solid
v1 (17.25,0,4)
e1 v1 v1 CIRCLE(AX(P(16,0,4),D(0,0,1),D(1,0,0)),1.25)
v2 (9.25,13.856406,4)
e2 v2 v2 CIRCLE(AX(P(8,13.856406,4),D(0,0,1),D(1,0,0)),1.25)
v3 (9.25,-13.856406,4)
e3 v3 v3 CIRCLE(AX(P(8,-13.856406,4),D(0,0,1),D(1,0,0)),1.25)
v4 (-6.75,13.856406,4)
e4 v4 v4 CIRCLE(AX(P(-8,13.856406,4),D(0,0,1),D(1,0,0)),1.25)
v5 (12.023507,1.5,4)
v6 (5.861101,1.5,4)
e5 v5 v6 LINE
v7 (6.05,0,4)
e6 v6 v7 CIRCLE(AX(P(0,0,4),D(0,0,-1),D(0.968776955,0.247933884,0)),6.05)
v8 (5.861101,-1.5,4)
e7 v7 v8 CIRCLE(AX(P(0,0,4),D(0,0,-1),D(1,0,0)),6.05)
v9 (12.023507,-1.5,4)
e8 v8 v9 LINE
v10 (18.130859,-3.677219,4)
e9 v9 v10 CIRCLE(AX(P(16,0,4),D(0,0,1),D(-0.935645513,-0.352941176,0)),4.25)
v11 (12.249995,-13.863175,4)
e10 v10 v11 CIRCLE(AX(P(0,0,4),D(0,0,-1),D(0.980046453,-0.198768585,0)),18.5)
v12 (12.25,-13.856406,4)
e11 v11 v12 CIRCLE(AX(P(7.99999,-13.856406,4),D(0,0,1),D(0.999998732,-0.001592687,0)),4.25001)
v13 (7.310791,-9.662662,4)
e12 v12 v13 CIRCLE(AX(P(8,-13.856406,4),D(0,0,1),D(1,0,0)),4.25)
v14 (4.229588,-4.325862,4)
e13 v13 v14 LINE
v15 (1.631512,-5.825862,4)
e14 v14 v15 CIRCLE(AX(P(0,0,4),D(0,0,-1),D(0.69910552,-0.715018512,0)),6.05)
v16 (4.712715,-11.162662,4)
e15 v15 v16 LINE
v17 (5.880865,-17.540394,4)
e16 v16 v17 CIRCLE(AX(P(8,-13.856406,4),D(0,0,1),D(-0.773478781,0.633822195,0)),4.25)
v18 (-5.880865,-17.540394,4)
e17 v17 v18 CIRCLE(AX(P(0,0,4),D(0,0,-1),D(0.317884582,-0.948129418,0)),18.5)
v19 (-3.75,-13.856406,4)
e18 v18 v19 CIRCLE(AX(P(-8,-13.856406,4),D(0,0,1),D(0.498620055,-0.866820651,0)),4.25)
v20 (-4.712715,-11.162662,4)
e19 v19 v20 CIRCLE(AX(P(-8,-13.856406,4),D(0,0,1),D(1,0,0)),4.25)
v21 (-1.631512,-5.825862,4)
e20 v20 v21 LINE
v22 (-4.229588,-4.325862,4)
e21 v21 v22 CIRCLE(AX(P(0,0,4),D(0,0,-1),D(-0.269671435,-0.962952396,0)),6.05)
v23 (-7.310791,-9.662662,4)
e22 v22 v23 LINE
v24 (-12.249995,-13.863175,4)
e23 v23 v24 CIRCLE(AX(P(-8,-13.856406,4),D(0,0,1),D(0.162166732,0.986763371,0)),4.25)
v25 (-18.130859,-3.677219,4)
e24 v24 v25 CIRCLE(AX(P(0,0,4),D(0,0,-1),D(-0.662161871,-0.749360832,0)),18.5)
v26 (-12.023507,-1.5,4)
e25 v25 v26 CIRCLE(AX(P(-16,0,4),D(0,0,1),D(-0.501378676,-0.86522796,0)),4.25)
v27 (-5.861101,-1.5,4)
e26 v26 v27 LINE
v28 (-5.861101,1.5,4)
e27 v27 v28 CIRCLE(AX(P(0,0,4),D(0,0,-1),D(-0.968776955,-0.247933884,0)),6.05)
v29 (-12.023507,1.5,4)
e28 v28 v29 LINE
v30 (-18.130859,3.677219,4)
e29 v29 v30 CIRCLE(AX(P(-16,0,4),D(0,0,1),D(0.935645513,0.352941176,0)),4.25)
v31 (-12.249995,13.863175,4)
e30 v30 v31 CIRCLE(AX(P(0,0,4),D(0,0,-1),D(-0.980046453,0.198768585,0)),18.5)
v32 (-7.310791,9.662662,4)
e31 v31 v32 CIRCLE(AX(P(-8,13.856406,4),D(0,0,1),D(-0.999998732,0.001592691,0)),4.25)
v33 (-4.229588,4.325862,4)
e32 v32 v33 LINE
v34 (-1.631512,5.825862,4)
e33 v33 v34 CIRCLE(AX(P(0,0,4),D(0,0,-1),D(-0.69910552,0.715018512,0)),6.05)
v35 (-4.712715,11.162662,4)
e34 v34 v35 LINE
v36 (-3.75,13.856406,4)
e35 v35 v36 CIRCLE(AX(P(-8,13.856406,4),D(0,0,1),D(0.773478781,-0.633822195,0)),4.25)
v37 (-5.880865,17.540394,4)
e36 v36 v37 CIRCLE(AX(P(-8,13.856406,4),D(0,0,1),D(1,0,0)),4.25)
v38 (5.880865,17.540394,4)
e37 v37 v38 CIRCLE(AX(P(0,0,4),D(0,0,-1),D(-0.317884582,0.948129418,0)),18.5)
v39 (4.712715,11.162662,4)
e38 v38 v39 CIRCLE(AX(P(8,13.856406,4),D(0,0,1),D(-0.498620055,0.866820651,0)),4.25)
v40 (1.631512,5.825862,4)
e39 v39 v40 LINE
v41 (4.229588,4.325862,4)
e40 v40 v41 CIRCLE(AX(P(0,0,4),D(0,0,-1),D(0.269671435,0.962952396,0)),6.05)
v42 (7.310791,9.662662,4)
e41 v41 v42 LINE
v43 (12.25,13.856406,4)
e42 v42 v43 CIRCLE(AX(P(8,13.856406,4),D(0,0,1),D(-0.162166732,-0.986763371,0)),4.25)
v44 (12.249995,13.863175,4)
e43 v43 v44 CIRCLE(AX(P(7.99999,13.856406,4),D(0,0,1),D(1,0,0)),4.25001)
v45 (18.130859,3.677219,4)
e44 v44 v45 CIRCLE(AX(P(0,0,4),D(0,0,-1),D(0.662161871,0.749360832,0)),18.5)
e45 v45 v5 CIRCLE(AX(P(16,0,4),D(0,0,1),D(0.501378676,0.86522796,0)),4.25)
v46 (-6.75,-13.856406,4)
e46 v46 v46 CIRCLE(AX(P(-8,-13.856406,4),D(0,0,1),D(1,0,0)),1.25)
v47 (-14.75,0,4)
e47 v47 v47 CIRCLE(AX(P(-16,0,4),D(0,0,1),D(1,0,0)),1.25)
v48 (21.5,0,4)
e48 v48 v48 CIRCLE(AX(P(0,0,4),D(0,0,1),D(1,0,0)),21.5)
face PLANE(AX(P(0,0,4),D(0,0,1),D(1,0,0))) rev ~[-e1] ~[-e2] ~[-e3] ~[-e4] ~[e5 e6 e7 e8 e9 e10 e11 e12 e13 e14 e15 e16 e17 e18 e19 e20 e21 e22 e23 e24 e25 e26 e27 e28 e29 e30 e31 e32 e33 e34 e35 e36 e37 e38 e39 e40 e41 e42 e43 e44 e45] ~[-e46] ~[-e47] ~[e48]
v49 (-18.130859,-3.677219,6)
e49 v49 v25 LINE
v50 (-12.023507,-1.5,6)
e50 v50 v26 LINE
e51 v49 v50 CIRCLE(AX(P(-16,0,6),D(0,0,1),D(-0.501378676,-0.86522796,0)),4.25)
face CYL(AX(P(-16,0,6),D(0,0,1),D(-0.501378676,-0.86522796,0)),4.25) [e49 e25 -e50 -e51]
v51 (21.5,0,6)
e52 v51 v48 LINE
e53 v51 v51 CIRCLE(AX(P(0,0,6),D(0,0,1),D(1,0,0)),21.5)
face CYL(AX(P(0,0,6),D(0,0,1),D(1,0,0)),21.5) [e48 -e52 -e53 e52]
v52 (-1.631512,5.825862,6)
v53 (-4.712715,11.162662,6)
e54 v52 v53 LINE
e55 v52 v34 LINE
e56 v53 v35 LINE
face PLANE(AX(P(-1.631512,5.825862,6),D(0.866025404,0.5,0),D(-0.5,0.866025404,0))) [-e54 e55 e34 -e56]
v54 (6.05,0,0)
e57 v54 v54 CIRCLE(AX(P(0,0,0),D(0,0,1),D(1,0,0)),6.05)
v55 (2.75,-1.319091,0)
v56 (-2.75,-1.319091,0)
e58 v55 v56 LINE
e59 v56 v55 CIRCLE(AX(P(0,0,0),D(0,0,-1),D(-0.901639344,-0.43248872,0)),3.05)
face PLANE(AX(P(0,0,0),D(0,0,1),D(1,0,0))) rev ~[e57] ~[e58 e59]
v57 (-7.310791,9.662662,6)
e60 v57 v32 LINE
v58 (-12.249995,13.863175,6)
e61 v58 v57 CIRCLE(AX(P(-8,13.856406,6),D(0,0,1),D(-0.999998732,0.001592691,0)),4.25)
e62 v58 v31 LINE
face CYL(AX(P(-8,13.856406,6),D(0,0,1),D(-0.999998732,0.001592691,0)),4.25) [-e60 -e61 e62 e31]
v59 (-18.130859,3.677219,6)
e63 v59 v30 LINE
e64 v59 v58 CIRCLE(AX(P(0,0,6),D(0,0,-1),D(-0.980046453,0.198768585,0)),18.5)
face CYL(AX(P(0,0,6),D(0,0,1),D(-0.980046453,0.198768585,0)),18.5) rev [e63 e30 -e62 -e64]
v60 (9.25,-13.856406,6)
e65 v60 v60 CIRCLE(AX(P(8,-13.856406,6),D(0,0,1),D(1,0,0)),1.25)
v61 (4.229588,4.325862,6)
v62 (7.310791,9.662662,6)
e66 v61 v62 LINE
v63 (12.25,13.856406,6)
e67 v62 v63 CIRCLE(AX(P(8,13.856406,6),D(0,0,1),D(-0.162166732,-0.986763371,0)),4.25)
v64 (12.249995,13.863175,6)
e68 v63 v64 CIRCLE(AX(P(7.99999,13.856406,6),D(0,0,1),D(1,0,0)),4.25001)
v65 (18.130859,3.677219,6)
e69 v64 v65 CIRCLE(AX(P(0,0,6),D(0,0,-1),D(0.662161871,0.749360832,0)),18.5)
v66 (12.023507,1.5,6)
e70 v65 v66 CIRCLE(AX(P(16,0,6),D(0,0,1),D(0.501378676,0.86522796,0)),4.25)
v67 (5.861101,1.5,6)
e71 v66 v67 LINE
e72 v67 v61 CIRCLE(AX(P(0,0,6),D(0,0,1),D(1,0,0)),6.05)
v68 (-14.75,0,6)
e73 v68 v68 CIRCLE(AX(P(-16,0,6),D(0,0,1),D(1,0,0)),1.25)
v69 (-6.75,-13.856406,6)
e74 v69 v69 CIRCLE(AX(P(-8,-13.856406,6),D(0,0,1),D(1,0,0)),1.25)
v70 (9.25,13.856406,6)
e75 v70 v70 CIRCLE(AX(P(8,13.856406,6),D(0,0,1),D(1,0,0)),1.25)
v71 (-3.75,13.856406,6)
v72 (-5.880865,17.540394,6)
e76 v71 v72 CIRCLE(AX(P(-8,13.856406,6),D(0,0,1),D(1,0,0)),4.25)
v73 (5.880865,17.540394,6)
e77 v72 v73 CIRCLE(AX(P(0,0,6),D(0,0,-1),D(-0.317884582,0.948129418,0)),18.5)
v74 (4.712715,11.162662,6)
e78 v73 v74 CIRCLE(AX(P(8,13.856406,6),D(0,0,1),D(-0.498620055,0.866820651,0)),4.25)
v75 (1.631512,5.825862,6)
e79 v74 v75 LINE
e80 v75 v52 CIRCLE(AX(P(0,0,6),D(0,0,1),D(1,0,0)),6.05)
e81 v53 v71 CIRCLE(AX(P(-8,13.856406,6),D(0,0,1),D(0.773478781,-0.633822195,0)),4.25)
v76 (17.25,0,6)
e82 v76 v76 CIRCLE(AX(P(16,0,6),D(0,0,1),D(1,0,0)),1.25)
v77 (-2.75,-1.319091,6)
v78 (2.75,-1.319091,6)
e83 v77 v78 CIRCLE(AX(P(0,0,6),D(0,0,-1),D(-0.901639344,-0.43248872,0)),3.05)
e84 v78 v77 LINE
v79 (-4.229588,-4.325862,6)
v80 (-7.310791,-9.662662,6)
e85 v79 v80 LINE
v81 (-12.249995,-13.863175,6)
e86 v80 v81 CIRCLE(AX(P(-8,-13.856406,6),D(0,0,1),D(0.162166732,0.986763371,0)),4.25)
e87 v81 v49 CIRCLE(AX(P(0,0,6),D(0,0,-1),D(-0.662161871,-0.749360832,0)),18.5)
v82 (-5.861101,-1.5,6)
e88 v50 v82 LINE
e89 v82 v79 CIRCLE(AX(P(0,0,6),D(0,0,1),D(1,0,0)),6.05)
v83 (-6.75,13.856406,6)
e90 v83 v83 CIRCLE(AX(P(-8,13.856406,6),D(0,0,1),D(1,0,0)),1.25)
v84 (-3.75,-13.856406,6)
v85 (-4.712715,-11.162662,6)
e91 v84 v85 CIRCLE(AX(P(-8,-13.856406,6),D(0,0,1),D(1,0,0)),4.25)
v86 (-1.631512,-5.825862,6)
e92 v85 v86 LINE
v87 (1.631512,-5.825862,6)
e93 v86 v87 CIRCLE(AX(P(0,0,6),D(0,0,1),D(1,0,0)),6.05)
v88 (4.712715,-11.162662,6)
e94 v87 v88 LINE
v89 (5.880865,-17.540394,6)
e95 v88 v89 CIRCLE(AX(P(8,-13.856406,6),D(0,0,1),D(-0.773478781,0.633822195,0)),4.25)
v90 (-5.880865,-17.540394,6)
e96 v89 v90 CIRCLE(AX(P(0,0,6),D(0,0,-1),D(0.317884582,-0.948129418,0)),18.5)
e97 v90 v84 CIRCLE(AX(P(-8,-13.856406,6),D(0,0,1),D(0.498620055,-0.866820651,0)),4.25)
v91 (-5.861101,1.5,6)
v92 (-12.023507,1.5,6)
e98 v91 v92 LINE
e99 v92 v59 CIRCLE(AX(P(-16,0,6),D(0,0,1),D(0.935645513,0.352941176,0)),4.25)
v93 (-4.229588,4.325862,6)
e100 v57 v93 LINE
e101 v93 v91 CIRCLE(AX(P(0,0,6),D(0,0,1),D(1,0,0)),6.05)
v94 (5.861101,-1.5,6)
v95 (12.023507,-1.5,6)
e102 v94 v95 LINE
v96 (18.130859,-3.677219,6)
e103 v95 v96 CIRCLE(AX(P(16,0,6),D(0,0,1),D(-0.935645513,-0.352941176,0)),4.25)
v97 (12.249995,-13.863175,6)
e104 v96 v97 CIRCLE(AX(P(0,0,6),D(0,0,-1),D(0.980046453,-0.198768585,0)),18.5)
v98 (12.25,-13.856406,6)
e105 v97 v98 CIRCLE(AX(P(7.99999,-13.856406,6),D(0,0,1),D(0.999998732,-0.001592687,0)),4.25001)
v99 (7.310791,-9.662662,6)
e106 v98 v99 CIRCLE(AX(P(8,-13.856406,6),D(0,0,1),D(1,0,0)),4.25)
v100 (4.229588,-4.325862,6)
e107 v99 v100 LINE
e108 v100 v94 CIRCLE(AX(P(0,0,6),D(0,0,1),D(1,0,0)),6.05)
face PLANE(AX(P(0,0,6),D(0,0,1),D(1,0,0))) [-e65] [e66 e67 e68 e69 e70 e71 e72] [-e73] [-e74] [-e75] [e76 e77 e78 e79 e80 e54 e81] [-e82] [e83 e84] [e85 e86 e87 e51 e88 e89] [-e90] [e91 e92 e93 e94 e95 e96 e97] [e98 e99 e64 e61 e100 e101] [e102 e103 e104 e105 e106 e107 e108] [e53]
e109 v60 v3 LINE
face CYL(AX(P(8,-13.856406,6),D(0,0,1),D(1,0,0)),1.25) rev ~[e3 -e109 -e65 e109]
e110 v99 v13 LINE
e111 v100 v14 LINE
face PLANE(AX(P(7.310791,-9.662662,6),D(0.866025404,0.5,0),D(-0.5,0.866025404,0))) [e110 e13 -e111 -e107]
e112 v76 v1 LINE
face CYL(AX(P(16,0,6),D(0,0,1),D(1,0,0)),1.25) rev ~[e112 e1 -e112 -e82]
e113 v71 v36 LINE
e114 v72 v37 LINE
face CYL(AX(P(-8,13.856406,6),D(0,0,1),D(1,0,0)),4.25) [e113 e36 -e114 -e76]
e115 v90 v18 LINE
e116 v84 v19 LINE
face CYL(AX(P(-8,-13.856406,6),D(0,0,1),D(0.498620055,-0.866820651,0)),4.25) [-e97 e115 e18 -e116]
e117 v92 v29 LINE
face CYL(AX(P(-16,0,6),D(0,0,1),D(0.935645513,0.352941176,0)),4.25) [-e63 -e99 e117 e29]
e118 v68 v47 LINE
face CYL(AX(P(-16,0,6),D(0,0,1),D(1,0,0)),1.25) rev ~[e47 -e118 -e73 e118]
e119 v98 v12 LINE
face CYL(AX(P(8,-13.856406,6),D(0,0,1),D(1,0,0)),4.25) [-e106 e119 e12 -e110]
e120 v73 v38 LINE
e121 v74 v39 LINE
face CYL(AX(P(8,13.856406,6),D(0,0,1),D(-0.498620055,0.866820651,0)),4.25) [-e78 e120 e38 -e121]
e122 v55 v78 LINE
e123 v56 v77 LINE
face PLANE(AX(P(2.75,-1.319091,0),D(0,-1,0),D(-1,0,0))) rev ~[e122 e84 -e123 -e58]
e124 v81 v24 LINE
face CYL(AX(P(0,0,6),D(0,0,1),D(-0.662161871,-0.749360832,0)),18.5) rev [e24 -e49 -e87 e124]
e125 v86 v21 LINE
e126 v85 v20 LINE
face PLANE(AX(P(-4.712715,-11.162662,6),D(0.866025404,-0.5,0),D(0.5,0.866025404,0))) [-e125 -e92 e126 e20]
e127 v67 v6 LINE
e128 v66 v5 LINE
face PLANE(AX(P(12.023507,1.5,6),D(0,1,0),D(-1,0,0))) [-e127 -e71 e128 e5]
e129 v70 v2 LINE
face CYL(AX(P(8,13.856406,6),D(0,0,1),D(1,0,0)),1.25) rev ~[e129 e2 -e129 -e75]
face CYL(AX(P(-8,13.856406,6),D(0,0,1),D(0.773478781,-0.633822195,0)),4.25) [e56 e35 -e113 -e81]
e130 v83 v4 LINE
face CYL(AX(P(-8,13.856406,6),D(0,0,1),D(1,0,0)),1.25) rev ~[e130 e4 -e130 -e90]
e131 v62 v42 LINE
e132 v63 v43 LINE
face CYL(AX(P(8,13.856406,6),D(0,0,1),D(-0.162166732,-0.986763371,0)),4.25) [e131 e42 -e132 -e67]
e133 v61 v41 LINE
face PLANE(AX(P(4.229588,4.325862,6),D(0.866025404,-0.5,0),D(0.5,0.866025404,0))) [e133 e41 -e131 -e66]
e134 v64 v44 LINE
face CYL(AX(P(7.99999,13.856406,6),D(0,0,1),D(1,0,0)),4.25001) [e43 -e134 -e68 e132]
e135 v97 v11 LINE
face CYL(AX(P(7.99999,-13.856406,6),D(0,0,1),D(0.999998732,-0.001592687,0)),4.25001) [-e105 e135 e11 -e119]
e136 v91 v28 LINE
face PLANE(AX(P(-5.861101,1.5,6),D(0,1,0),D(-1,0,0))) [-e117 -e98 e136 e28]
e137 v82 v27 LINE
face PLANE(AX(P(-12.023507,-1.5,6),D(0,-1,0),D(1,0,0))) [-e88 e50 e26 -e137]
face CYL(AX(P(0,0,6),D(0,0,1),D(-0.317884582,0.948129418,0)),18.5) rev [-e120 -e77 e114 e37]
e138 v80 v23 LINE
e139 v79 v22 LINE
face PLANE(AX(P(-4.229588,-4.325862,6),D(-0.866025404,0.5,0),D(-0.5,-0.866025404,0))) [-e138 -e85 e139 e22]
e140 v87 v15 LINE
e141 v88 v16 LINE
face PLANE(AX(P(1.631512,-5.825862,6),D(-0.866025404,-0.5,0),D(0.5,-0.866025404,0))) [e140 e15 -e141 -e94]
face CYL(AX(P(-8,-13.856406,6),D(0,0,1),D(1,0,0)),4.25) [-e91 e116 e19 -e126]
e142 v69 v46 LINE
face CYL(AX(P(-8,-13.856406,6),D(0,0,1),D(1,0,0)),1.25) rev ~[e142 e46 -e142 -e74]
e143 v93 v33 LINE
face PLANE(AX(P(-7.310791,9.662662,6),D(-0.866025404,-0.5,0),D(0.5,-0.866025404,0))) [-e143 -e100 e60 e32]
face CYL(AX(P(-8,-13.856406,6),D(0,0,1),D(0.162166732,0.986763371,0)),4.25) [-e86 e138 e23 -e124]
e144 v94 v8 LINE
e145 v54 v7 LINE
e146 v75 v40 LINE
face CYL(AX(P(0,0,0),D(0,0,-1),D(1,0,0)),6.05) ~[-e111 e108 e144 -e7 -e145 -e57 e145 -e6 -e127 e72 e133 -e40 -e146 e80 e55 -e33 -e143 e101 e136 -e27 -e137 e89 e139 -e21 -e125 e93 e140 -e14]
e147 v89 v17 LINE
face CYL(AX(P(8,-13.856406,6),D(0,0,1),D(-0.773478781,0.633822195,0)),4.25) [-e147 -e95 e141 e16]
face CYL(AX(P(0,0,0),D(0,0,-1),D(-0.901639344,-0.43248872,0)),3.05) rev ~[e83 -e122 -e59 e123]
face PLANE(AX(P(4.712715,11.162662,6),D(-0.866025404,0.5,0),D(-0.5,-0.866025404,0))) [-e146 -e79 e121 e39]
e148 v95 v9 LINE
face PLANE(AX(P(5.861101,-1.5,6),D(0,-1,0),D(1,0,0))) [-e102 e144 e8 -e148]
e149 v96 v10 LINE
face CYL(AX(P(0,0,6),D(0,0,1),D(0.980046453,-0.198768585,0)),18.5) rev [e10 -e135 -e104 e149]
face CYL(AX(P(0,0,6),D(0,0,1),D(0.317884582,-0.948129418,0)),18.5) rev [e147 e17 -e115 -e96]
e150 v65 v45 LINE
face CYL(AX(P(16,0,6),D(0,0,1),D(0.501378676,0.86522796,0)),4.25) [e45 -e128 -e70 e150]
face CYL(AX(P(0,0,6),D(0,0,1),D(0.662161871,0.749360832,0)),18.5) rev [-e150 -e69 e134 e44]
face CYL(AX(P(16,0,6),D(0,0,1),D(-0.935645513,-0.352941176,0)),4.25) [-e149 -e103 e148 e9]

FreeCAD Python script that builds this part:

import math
import FreeCAD as App
import Part
import Sketcher
from FreeCAD import Vector
Q = App.Units.Quantity

doc = App.newDocument("Part")
params = doc.addObject("Spreadsheet::Sheet", "Params")
for row, (alias, value) in enumerate([
    ("sketch1_diameter", "12.1 mm"),
    ("sketch1_radius", "3.05 mm"),
    ("sketch1_width", "5.5 mm"),
    ("pad1_length", "6 mm"),
    ("sketch2_diameter", "43 mm"),
    ("sketch2_diameter2", "2.5 mm"),
    ("sketch2_radius", "18.5 mm"),
    ("sketch2_radius2", "4.25 mm"),
    ("sketch2_radius3", "6.05 mm"),
    ("pad2_length", "2 mm"),
], start=1):
    params.set(f"A{row}", alias)
    params.set(f"B{row}", "=" + value)
    params.setAlias(f"B{row}", alias)

body = doc.addObject("PartDesign::Body", "Body")

# Sketch on XY plane
sketch1 = doc.addObject("Sketcher::SketchObject", "Sketch")
body.addObject(sketch1)
sketch1.AttachmentSupport = (doc.XY_Plane, [""])
sketch1.MapMode = "FlatFace"
sketch1.addGeometry(Part.Circle(Vector(0, 0, 0), Vector(0, 0, 1), 6), False)
sketch1.addGeometry(Part.ArcOfCircle(Part.Circle(Vector(0, 0, 0), Vector(0, 0, 1), 3), math.radians(-26), math.radians(206)), False)
sketch1.addGeometry(Part.LineSegment(Vector(2.8, -1.3, 0), Vector(-2.8, -1.3, 0)), False)
sketch1.addConstraint(Sketcher.Constraint("Coincident", 1, 1, 2, 1))
sketch1.addConstraint(Sketcher.Constraint("Coincident", 2, 2, 1, 2))
sketch1.addConstraint(Sketcher.Constraint("Horizontal", 2))
sketch1.addConstraint(Sketcher.Constraint("Coincident", 0, 3, -1, 1))
sketch1.addConstraint(Sketcher.Constraint("Coincident", 1, 3, -1, 1))
sketch1.addConstraint(Sketcher.Constraint("Diameter", 0, Q("12.1 mm")))
sketch1.addConstraint(Sketcher.Constraint("Radius", 1, Q("3.05 mm")))
sketch1.addConstraint(Sketcher.Constraint("DistanceX", 2, 2, 2, 1, Q("5.5 mm")))
sketch1.setExpression("Constraints[5]", "Params.sketch1_diameter")
sketch1.setExpression("Constraints[6]", "Params.sketch1_radius")
sketch1.setExpression("Constraints[7]", "Params.sketch1_width")
pad1 = doc.addObject("PartDesign::Pad", "Pad")
body.addObject(pad1)
pad1.Profile = sketch1
pad1.setExpression("Length", "Params.pad1_length")

# Sketch on XY plane
sketch2 = doc.addObject("Sketcher::SketchObject", "Sketch001")
body.addObject(sketch2)
sketch2.AttachmentSupport = (doc.XY_Plane, [""])
sketch2.MapMode = "FlatFace"
sketch2.AttachmentOffset = App.Placement(Vector(0, 0, 6), App.Rotation())
sketch2.addGeometry(Part.Circle(Vector(0, 0, 0), Vector(0, 0, 1), 21.5), False)
sketch2.addGeometry(Part.ArcOfCircle(Part.Circle(Vector(0, 0, 0), Vector(0, 0, 1), 18.5), math.radians(11), math.radians(49)), False)
sketch2.addGeometry(Part.ArcOfCircle(Part.Circle(Vector(16, 0, 0), Vector(0, 0, 1), 4.25), math.radians(60), math.radians(159)), False)
sketch2.addGeometry(Part.LineSegment(Vector(12.024, 1.5, 0), Vector(5.861, 1.5, 0)), False)
sketch2.addGeometry(Part.ArcOfCircle(Part.Circle(Vector(0, 0, 0), Vector(0, 0, 1), 6.05), math.radians(0), math.radians(14.36)), False)
sketch2.addGeometry(Part.ArcOfCircle(Part.Circle(Vector(0, 0, 0), Vector(0, 0, 1), 6.05), math.radians(-14.36), math.radians(0)), False)
sketch2.addGeometry(Part.LineSegment(Vector(5.861, -1.5, 0), Vector(12.024, -1.5, 0)), False)
sketch2.addGeometry(Part.ArcOfCircle(Part.Circle(Vector(16, 0, 0), Vector(0, 0, 1), 4.25), math.radians(-159), math.radians(-60)), False)
sketch2.addGeometry(Part.ArcOfCircle(Part.Circle(Vector(0, 0, 0), Vector(0, 0, 1), 18.5), math.radians(-49), math.radians(-11)), False)
sketch2.addGeometry(Part.ArcOfCircle(Part.Circle(Vector(8, -13.856, 0), Vector(0, 0, 1), 4.25), math.radians(-0.09), math.radians(0)), False)
sketch2.addGeometry(Part.ArcOfCircle(Part.Circle(Vector(8, -13.856, 0), Vector(0, 0, 1), 4.25), math.radians(0), math.radians(99)), False)
sketch2.addGeometry(Part.LineSegment(Vector(7.311, -9.663, 0), Vector(4.23, -4.326, 0)), False)
sketch2.addGeometry(Part.ArcOfCircle(Part.Circle(Vector(0, 0, 0), Vector(0, 0, 1), 6.05), math.radians(-74), math.radians(-46)), False)
sketch2.addGeometry(Part.LineSegment(Vector(1.632, -5.826, 0), Vector(4.713, -11.163, 0)), False)
sketch2.addGeometry(Part.ArcOfCircle(Part.Circle(Vector(8, -13.856, 0), Vector(0, 0, 1), 4.25), math.radians(141), math.radians(240)), False)
sketch2.addGeometry(Part.ArcOfCircle(Part.Circle(Vector(0, 0, 0), Vector(0, 0, 1), 18.5), math.radians(-109), math.radians(-71)), False)
sketch2.addGeometry(Part.ArcOfCircle(Part.Circle(Vector(-8, -13.856, 0), Vector(0, 0, 1), 4.25), math.radians(-60), math.radians(0)), False)
sketch2.addGeometry(Part.ArcOfCircle(Part.Circle(Vector(-8, -13.856, 0), Vector(0, 0, 1), 4.25), math.radians(0), math.radians(39)), False)
sketch2.addGeometry(Part.LineSegment(Vector(-4.713, -11.163, 0), Vector(-1.632, -5.826, 0)), False)
sketch2.addGeometry(Part.ArcOfCircle(Part.Circle(Vector(0, 0, 0), Vector(0, 0, 1), 6.05), math.radians(-134), math.radians(-106)), False)
sketch2.addGeometry(Part.LineSegment(Vector(-4.23, -4.326, 0), Vector(-7.311, -9.663, 0)), False)
sketch2.addGeometry(Part.ArcOfCircle(Part.Circle(Vector(-8, -13.856, 0), Vector(0, 0, 1), 4.25), math.radians(81), math.radians(180)), False)
sketch2.addGeometry(Part.ArcOfCircle(Part.Circle(Vector(0, 0, 0), Vector(0, 0, 1), 18.5), math.radians(-169), math.radians(-131)), False)
sketch2.addGeometry(Part.ArcOfCircle(Part.Circle(Vector(-16, 0, 0), Vector(0, 0, 1), 4.25), math.radians(-120), math.radians(-21)), False)
sketch2.addGeometry(Part.LineSegment(Vector(-12.024, -1.5, 0), Vector(-5.861, -1.5, 0)), False)
sketch2.addGeometry(Part.ArcOfCircle(Part.Circle(Vector(0, 0, 0), Vector(0, 0, 1), 6.05), math.radians(166), math.radians(194)), False)
sketch2.addGeometry(Part.LineSegment(Vector(-5.861, 1.5, 0), Vector(-12.024, 1.5, 0)), False)
sketch2.addGeometry(Part.ArcOfCircle(Part.Circle(Vector(-16, 0, 0), Vector(0, 0, 1), 4.25), math.radians(21), math.radians(120)), False)
sketch2.addGeometry(Part.ArcOfCircle(Part.Circle(Vector(0, 0, 0), Vector(0, 0, 1), 18.5), math.radians(131), math.radians(169)), False)
sketch2.addGeometry(Part.ArcOfCircle(Part.Circle(Vector(-8, 13.856, 0), Vector(0, 0, 1), 4.25), math.radians(180), math.radians(279)), False)
sketch2.addGeometry(Part.LineSegment(Vector(-7.311, 9.663, 0), Vector(-4.23, 4.326, 0)), False)
sketch2.addGeometry(Part.ArcOfCircle(Part.Circle(Vector(0, 0, 0), Vector(0, 0, 1), 6.05), math.radians(106), math.radians(134)), False)
sketch2.addGeometry(Part.LineSegment(Vector(-1.632, 5.826, 0), Vector(-4.713, 11.163, 0)), False)
sketch2.addGeometry(Part.ArcOfCircle(Part.Circle(Vector(-8, 13.856, 0), Vector(0, 0, 1), 4.25), math.radians(-39), math.radians(0)), False)
sketch2.addGeometry(Part.ArcOfCircle(Part.Circle(Vector(-8, 13.856, 0), Vector(0, 0, 1), 4.25), math.radians(0), math.radians(60)), False)
sketch2.addGeometry(Part.ArcOfCircle(Part.Circle(Vector(0, 0, 0), Vector(0, 0, 1), 18.5), math.radians(71), math.radians(109)), False)
sketch2.addGeometry(Part.ArcOfCircle(Part.Circle(Vector(8, 13.856, 0), Vector(0, 0, 1), 4.25), math.radians(120), math.radians(219)), False)
sketch2.addGeometry(Part.LineSegment(Vector(4.713, 11.163, 0), Vector(1.632, 5.826, 0)), False)
sketch2.addGeometry(Part.ArcOfCircle(Part.Circle(Vector(0, 0, 0), Vector(0, 0, 1), 6.05), math.radians(46), math.radians(74)), False)
sketch2.addGeometry(Part.LineSegment(Vector(4.23, 4.326, 0), Vector(7.311, 9.663, 0)), False)
sketch2.addGeometry(Part.ArcOfCircle(Part.Circle(Vector(8, 13.856, 0), Vector(0, 0, 1), 4.25), math.radians(-99), math.radians(0)), False)
sketch2.addGeometry(Part.ArcOfCircle(Part.Circle(Vector(8, 13.856, 0), Vector(0, 0, 1), 4.25), math.radians(0), math.radians(0.09)), False)
sketch2.addGeometry(Part.Circle(Vector(-8, 13.856, 0), Vector(0, 0, 1), 1.25), False)
sketch2.addGeometry(Part.Circle(Vector(-16, 0, 0), Vector(0, 0, 1), 1.25), False)
sketch2.addGeometry(Part.Circle(Vector(-8, -13.856, 0), Vector(0, 0, 1), 1.25), False)
sketch2.addGeometry(Part.Circle(Vector(8, -13.856, 0), Vector(0, 0, 1), 1.25), False)
sketch2.addGeometry(Part.Circle(Vector(16, 0, 0), Vector(0, 0, 1), 1.25), False)
sketch2.addGeometry(Part.Circle(Vector(8, 13.856, 0), Vector(0, 0, 1), 1.25), False)
sketch2.addConstraint(Sketcher.Constraint("Coincident", 1, 1, 2, 1))
sketch2.addConstraint(Sketcher.Constraint("Coincident", 2, 2, 3, 1))
sketch2.addConstraint(Sketcher.Constraint("Coincident", 3, 2, 4, 2))
sketch2.addConstraint(Sketcher.Constraint("Tangent", 4, 1, 5, 2))
sketch2.addConstraint(Sketcher.Constraint("Coincident", 5, 1, 6, 1))
sketch2.addConstraint(Sketcher.Constraint("Coincident", 6, 2, 7, 1))
sketch2.addConstraint(Sketcher.Constraint("Coincident", 7, 2, 8, 2))
sketch2.addConstraint(Sketcher.Constraint("Coincident", 8, 1, 9, 1))
sketch2.addConstraint(Sketcher.Constraint("Tangent", 9, 2, 10, 1))
sketch2.addConstraint(Sketcher.Constraint("Coincident", 10, 2, 11, 1))
sketch2.addConstraint(Sketcher.Constraint("Coincident", 11, 2, 12, 2))
sketch2.addConstraint(Sketcher.Constraint("Coincident", 12, 1, 13, 1))
sketch2.addConstraint(Sketcher.Constraint("Coincident", 13, 2, 14, 1))
sketch2.addConstraint(Sketcher.Constraint("Coincident", 14, 2, 15, 2))
sketch2.addConstraint(Sketcher.Constraint("Coincident", 15, 1, 16, 1))
sketch2.addConstraint(Sketcher.Constraint("Tangent", 16, 2, 17, 1))
sketch2.addConstraint(Sketcher.Constraint("Coincident", 17, 2, 18, 1))
sketch2.addConstraint(Sketcher.Constraint("Coincident", 18, 2, 19, 2))
sketch2.addConstraint(Sketcher.Constraint("Coincident", 19, 1, 20, 1))
sketch2.addConstraint(Sketcher.Constraint("Coincident", 20, 2, 21, 1))
sketch2.addConstraint(Sketcher.Constraint("Coincident", 21, 2, 22, 2))
sketch2.addConstraint(Sketcher.Constraint("Coincident", 22, 1, 23, 1))
sketch2.addConstraint(Sketcher.Constraint("Coincident", 23, 2, 24, 1))
sketch2.addConstraint(Sketcher.Constraint("Coincident", 24, 2, 25, 2))
sketch2.addConstraint(Sketcher.Constraint("Coincident", 25, 1, 26, 1))
sketch2.addConstraint(Sketcher.Constraint("Coincident", 26, 2, 27, 1))
sketch2.addConstraint(Sketcher.Constraint("Coincident", 27, 2, 28, 2))
sketch2.addConstraint(Sketcher.Constraint("Coincident", 28, 1, 29, 1))
sketch2.addConstraint(Sketcher.Constraint("Coincident", 29, 2, 30, 1))
sketch2.addConstraint(Sketcher.Constraint("Coincident", 30, 2, 31, 2))
sketch2.addConstraint(Sketcher.Constraint("Coincident", 31, 1, 32, 1))
sketch2.addConstraint(Sketcher.Constraint("Coincident", 32, 2, 33, 1))
sketch2.addConstraint(Sketcher.Constraint("Tangent", 33, 2, 34, 1))
sketch2.addConstraint(Sketcher.Constraint("Coincident", 34, 2, 35, 2))
sketch2.addConstraint(Sketcher.Constraint("Coincident", 35, 1, 36, 1))
sketch2.addConstraint(Sketcher.Constraint("Coincident", 36, 2, 37, 1))
sketch2.addConstraint(Sketcher.Constraint("Coincident", 37, 2, 38, 2))
sketch2.addConstraint(Sketcher.Constraint("Coincident", 38, 1, 39, 1))
sketch2.addConstraint(Sketcher.Constraint("Coincident", 39, 2, 40, 1))
sketch2.addConstraint(Sketcher.Constraint("Tangent", 40, 2, 41, 1))
sketch2.addConstraint(Sketcher.Constraint("Coincident", 41, 2, 1, 2))
sketch2.addConstraint(Sketcher.Constraint("Horizontal", 3))
sketch2.addConstraint(Sketcher.Constraint("Horizontal", 6))
sketch2.addConstraint(Sketcher.Constraint("Horizontal", 24))
sketch2.addConstraint(Sketcher.Constraint("Horizontal", 26))
sketch2.addConstraint(Sketcher.Constraint("Coincident", 0, 3, -1, 1))
sketch2.addConstraint(Sketcher.Constraint("Coincident", 1, 3, -1, 1))
sketch2.addConstraint(Sketcher.Constraint("Coincident", 4, 3, -1, 1))
sketch2.addConstraint(Sketcher.Constraint("Coincident", 8, 3, -1, 1))
sketch2.addConstraint(Sketcher.Constraint("Coincident", 12, 3, -1, 1))
sketch2.addConstraint(Sketcher.Constraint("Coincident", 15, 3, -1, 1))
sketch2.addConstraint(Sketcher.Constraint("Coincident", 19, 3, -1, 1))
sketch2.addConstraint(Sketcher.Constraint("Coincident", 22, 3, -1, 1))
sketch2.addConstraint(Sketcher.Constraint("Coincident", 25, 3, -1, 1))
sketch2.addConstraint(Sketcher.Constraint("Coincident", 28, 3, -1, 1))
sketch2.addConstraint(Sketcher.Constraint("Coincident", 31, 3, -1, 1))
sketch2.addConstraint(Sketcher.Constraint("Coincident", 35, 3, -1, 1))
sketch2.addConstraint(Sketcher.Constraint("Coincident", 38, 3, -1, 1))
sketch2.addConstraint(Sketcher.Constraint("Coincident", 7, 3, 2, 3))
sketch2.addConstraint(Sketcher.Constraint("Coincident", 14, 3, 10, 3))
sketch2.addConstraint(Sketcher.Constraint("Coincident", 21, 3, 16, 3))
sketch2.addConstraint(Sketcher.Constraint("Coincident", 27, 3, 23, 3))
sketch2.addConstraint(Sketcher.Constraint("Coincident", 33, 3, 29, 3))
sketch2.addConstraint(Sketcher.Constraint("Coincident", 40, 3, 36, 3))
sketch2.addConstraint(Sketcher.Constraint("Coincident", 42, 3, 29, 3))
sketch2.addConstraint(Sketcher.Constraint("Coincident", 43, 3, 23, 3))
sketch2.addConstraint(Sketcher.Constraint("Coincident", 44, 3, 16, 3))
sketch2.addConstraint(Sketcher.Constraint("Coincident", 45, 3, 10, 3))
sketch2.addConstraint(Sketcher.Constraint("Coincident", 46, 3, 2, 3))
sketch2.addConstraint(Sketcher.Constraint("Coincident", 47, 3, 36, 3))
sketch2.addConstraint(Sketcher.Constraint("Equal", 4, 5))
sketch2.addConstraint(Sketcher.Constraint("Equal", 2, 7))
sketch2.addConstraint(Sketcher.Constraint("Equal", 1, 8))
sketch2.addConstraint(Sketcher.Constraint("Equal", 7, 10))
sketch2.addConstraint(Sketcher.Constraint("Equal", 5, 12))
sketch2.addConstraint(Sketcher.Constraint("Equal", 10, 14))
sketch2.addConstraint(Sketcher.Constraint("Equal", 8, 15))
sketch2.addConstraint(Sketcher.Constraint("Equal", 14, 16))
sketch2.addConstraint(Sketcher.Constraint("Equal", 16, 17))
sketch2.addConstraint(Sketcher.Constraint("Equal", 12, 19))
sketch2.addConstraint(Sketcher.Constraint("Equal", 17, 21))
sketch2.addConstraint(Sketcher.Constraint("Equal", 15, 22))
sketch2.addConstraint(Sketcher.Constraint("Equal", 21, 23))
sketch2.addConstraint(Sketcher.Constraint("Equal", 19, 25))
sketch2.addConstraint(Sketcher.Constraint("Equal", 23, 27))
sketch2.addConstraint(Sketcher.Constraint("Equal", 22, 28))
sketch2.addConstraint(Sketcher.Constraint("Equal", 27, 29))
sketch2.addConstraint(Sketcher.Constraint("Equal", 25, 31))
sketch2.addConstraint(Sketcher.Constraint("Equal", 29, 33))
sketch2.addConstraint(Sketcher.Constraint("Equal", 33, 34))
sketch2.addConstraint(Sketcher.Constraint("Equal", 28, 35))
sketch2.addConstraint(Sketcher.Constraint("Equal", 34, 36))
sketch2.addConstraint(Sketcher.Constraint("Equal", 31, 38))
sketch2.addConstraint(Sketcher.Constraint("Equal", 36, 40))
sketch2.addConstraint(Sketcher.Constraint("Equal", 9, 41))
sketch2.addConstraint(Sketcher.Constraint("Equal", 42, 43))
sketch2.addConstraint(Sketcher.Constraint("Equal", 43, 44))
sketch2.addConstraint(Sketcher.Constraint("Equal", 44, 45))
sketch2.addConstraint(Sketcher.Constraint("Equal", 45, 46))
sketch2.addConstraint(Sketcher.Constraint("Equal", 46, 47))
sketch2.addConstraint(Sketcher.Constraint("Symmetric", 2, 3, 23, 3, -1, 1))
sketch2.addConstraint(Sketcher.Constraint("Symmetric", 10, 3, 29, 3, -1, 1))
sketch2.addConstraint(Sketcher.Constraint("Symmetric", 16, 3, 36, 3, -1, 1))
sketch2.addConstraint(Sketcher.Constraint("Symmetric", 10, 3, 16, 3, -2))
sketch2.addConstraint(Sketcher.Constraint("Symmetric", 6, 2, 23, 2, -2))
sketch2.addConstraint(Sketcher.Constraint("PointOnObject", 4, 1, -1))
sketch2.addConstraint(Sketcher.Constraint("Parallel", 11, 13))
sketch2.addConstraint(Sketcher.Constraint("Parallel", 18, 20))
sketch2.addConstraint(Sketcher.Constraint("Parallel", 13, 30))
sketch2.addConstraint(Sketcher.Constraint("Parallel", 30, 32))
sketch2.addConstraint(Sketcher.Constraint("Parallel", 20, 37))
sketch2.addConstraint(Sketcher.Constraint("Parallel", 37, 39))
sketch2.addConstraint(Sketcher.Constraint("Horizontal", 45, 3, 9, 2))
sketch2.addConstraint(Sketcher.Constraint("Horizontal", 9, 2, 16, 2))
sketch2.addConstraint(Sketcher.Constraint("Horizontal", 13, 2, 17, 2))
sketch2.addConstraint(Sketcher.Constraint("Horizontal", 12, 1, 18, 2))
sketch2.addConstraint(Sketcher.Constraint("Horizontal", 11, 2, 19, 1))
sketch2.addConstraint(Sketcher.Constraint("Horizontal", 3, 2, 25, 1))
sketch2.addConstraint(Sketcher.Constraint("Horizontal", 47, 3, 33, 2))
sketch2.addConstraint(Sketcher.Constraint("Horizontal", 32, 2, 36, 2))
sketch2.addConstraint(Sketcher.Constraint("Horizontal", 30, 2, 38, 1))
sketch2.addConstraint(Sketcher.Constraint("Horizontal", 33, 2, 40, 2))
sketch2.addConstraint(Sketcher.Constraint("Vertical", 3, 2, 5, 1))
sketch2.addConstraint(Sketcher.Constraint("Vertical", 20, 2, 29, 2))
sketch2.addConstraint(Sketcher.Constraint("Vertical", 18, 2, 31, 1))
sketch2.addConstraint(Sketcher.Constraint("Equal", 11, 13))
sketch2.addConstraint(Sketcher.Constraint("Diameter", 0, Q("43 mm")))
sketch2.addConstraint(Sketcher.Constraint("Diameter", 42, Q("2.5 mm")))
sketch2.addConstraint(Sketcher.Constraint("Radius", 1, Q("18.5 mm")))
sketch2.addConstraint(Sketcher.Constraint("Angle", 11, Q("120 deg")))
sketch2.addConstraint(Sketcher.Constraint("Radius", 2, Q("4.25 mm")))
sketch2.addConstraint(Sketcher.Constraint("Radius", 4, Q("6.05 mm")))
sketch2.addConstraint(Sketcher.Constraint("DistanceX", -1, 1, 2, 3, Q("16 mm")))
sketch2.addConstraint(Sketcher.Constraint("DistanceX", -1, 1, 10, 3, Q("8 mm")))
sketch2.addConstraint(Sketcher.Constraint("DistanceY", -1, 1, 2, 2, Q("1.5 mm")))
sketch2.addConstraint(Sketcher.Constraint("Radius", 9, Q("4.25001 mm")))
sketch2.addConstraint(Sketcher.Constraint("DistanceX", -1, 1, 10, 2, Q("7.310791 mm")))
sketch2.addConstraint(Sketcher.Constraint("DistanceX", -1, 1, 11, 2, Q("4.229588 mm")))
sketch2.setExpression("Constraints[126]", "Params.sketch2_diameter")
sketch2.setExpression("Constraints[127]", "Params.sketch2_diameter2")
sketch2.setExpression("Constraints[128]", "Params.sketch2_radius")
sketch2.setExpression("Constraints[130]", "Params.sketch2_radius2")
sketch2.setExpression("Constraints[131]", "Params.sketch2_radius3")
pad2 = doc.addObject("PartDesign::Pad", "Pad001")
body.addObject(pad2)
pad2.Profile = sketch2
pad2.setExpression("Length", "Params.pad2_length")
pad2.Reversed = True

doc.recompute()
